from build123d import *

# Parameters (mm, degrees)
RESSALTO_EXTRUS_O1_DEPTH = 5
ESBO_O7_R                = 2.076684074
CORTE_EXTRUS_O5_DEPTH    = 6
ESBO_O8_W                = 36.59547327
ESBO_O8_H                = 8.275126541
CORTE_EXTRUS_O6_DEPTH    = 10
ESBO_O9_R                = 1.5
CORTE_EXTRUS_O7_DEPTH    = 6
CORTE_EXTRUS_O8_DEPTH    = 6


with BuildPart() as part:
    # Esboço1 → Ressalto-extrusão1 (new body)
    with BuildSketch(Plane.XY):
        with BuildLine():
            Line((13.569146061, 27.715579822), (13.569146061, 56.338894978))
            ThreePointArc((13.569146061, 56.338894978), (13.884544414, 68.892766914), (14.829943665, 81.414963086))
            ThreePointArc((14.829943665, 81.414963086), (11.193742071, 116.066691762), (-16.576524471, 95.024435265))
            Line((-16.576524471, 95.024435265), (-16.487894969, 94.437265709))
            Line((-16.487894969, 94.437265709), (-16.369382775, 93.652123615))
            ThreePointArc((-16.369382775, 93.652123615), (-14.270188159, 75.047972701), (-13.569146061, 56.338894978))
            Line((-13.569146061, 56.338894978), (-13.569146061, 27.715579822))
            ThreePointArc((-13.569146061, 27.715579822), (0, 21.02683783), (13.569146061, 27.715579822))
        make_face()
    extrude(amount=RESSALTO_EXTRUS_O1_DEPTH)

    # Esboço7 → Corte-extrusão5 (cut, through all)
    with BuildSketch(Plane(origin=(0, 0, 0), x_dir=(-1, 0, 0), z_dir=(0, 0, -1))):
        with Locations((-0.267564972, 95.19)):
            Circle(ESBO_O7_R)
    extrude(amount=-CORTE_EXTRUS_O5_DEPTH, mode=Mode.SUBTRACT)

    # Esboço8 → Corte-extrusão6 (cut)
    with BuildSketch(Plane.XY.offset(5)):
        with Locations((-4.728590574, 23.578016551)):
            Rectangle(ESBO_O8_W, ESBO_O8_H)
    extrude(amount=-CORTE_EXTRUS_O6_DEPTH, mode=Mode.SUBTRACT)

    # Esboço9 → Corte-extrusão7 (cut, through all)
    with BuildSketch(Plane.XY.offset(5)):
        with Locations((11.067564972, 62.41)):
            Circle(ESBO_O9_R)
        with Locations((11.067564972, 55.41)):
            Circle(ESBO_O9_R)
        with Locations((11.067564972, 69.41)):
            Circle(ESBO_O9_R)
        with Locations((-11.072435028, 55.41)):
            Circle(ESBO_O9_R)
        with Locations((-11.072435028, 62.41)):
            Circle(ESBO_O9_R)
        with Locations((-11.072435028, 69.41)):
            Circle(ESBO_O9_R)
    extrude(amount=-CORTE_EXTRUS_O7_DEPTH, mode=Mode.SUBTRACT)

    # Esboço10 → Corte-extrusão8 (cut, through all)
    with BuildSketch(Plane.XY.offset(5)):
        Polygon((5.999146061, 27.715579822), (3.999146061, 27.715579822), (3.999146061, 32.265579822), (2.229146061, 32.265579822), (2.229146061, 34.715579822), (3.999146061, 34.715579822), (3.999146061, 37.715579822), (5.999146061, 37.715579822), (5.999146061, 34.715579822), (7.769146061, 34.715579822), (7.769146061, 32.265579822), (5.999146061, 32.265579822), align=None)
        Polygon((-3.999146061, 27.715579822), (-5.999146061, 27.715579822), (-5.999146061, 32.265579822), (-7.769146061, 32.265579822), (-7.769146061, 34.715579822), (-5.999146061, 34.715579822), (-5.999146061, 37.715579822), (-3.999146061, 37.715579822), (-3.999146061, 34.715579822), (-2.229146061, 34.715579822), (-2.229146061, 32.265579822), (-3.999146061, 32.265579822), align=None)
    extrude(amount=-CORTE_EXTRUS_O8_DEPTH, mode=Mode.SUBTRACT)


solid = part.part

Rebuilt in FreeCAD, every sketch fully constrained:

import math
import FreeCAD as App
import Part
import Sketcher
from FreeCAD import Vector
Q = App.Units.Quantity


def add_polygon(sketch, points):
    """Adds a closed chain of lines whose ends are joined by coincident constraints."""
    first, n = sketch.GeometryCount, len(points)
    for a, b in zip(points, points[1:] + points[:1]):
        sketch.addGeometry(Part.LineSegment(App.Vector(*a, 0), App.Vector(*b, 0)), False)
    for i in range(n):
        sketch.addConstraint(Sketcher.Constraint("Coincident", first + i, 2, first + (i + 1) % n, 1))

doc = App.newDocument("Part")
params = doc.addObject("Spreadsheet::Sheet", "Params")
for row, (alias, value) in enumerate([
    ("sketch1_radius", "250 mm"),
    ("sketch1_radius2", "20 mm"),
    ("sketch1_radius3", "250 mm"),
    ("pad1_length", "5 mm"),
    ("pocket2_length", "10 mm"),
    ("sketch4_diameter", "3 mm"),
    ("sketch5_width", "2 mm"),
    ("sketch5_height", "3 mm"),
    ("sketch5_width2", "1.77 mm"),
    ("sketch5_height2", "4.55 mm"),
], start=1):
    params.set(f"A{row}", alias)
    params.set(f"B{row}", "=" + value)
    params.setAlias(f"B{row}", alias)

body = doc.addObject("PartDesign::Body", "Body")

# Sketch on XY plane
sketch1 = body.newObject("Sketcher::SketchObject", "Sketch")
sketch1.AttachmentSupport = (doc.getObject("XY_Plane"), [""])
sketch1.MapMode = "FlatFace"
sketch1.addGeometry([
    Part.LineSegment(Vector(13.569146, 27.71558, 0), Vector(13.569146, 56.338895, 0)),  # 0
    Part.ArcOfCircle(Part.Circle(Vector(263.569146, 56.338895, 0), Vector(0, 0, 1), 250), math.radians(174.243308), math.radians(180)),  # 1
    Part.ArcOfCircle(Part.Circle(Vector(3.241592, 97.71558, 0), Vector(0, 0, 1), 20), math.radians(-54.590411), math.radians(187.733017)),  # 2
    Part.LineSegment(Vector(-16.576524, 95.024435, 0), Vector(-16.487895, 94.437266, 0)),  # 3
    Part.LineSegment(Vector(-16.487895, 94.437266, 0), Vector(-16.369383, 93.652124, 0)),  # 4
    Part.ArcOfCircle(Part.Circle(Vector(-263.569146, 56.338895, 0), Vector(0, 0, 1), 250), math.radians(0), math.radians(8.583634)),  # 5
    Part.LineSegment(Vector(-13.569146, 56.338895, 0), Vector(-13.569146, 27.71558, 0)),  # 6
    Part.ArcOfCircle(Part.Circle(Vector(0, 38.134763, 0), Vector(0, 0, 1), 17.107925), math.radians(-142.48084), math.radians(-37.51916)),  # 7
], False)
sketch1.addConstraint([
    Sketcher.Constraint("Coincident", 0, 2, 1, 2),
    Sketcher.Constraint("Coincident", 1, 1, 2, 1),
    Sketcher.Constraint("Coincident", 2, 2, 3, 1),
    Sketcher.Constraint("Coincident", 3, 2, 4, 1),
    Sketcher.Constraint("Coincident", 4, 2, 5, 2),
    Sketcher.Constraint("Coincident", 5, 1, 6, 1),
    Sketcher.Constraint("Coincident", 6, 2, 7, 1),
    Sketcher.Constraint("Coincident", 7, 2, 0, 1),
    Sketcher.Constraint("Vertical", 0),
    Sketcher.Constraint("Vertical", 6),
    Sketcher.Constraint("PointOnObject", 7, 3, -2),
    Sketcher.Constraint("Radius", 1, Q("250 mm")),
    Sketcher.Constraint("Radius", 2, Q("20 mm")),
    Sketcher.Constraint("Radius", 5, Q("250 mm")),
    Sketcher.Constraint("Radius", 7, Q("17.107925 mm")),
    Sketcher.Constraint("DistanceY", 7, 3, 1, 1, Q("43.2802 mm")),
    Sketcher.Constraint("Distance", 3, Q("0.593821 mm")),
    Sketcher.Constraint("DistanceY", 0, 1, 0, 2, Q("28.623315 mm")),
    Sketcher.Constraint("DistanceY", 6, 2, 6, 1, Q("28.623315 mm")),
    Sketcher.Constraint("DistanceY", -1, 1, 2, 3, Q("97.71558 mm")),
    Sketcher.Constraint("DistanceY", -1, 1, 6, 2, Q("27.71558 mm")),
    Sketcher.Constraint("DistanceY", -1, 1, 7, 2, Q("27.71558 mm")),
    Sketcher.Constraint("DistanceX", 5, 3, 1, 3, Q("527.138292 mm")),
    Sketcher.Constraint("DistanceY", 1, 3, 1, 1, Q("25.076068 mm")),
    Sketcher.Constraint("DistanceY", 5, 3, 1, 1, Q("25.076068 mm")),
    Sketcher.Constraint("DistanceX", 2, 2, 1, 1, Q("31.406468 mm")),
    Sketcher.Constraint("DistanceX", 2, 2, 3, 2, Q("0.08863 mm")),
    Sketcher.Constraint("DistanceX", 2, 2, 4, 2, Q("0.207142 mm")),
])
sketch1.setExpression("Constraints[11]", "Params.sketch1_radius")
sketch1.setExpression("Constraints[12]", "Params.sketch1_radius2")
sketch1.setExpression("Constraints[13]", "Params.sketch1_radius3")
pad1 = body.newObject("PartDesign::Pad", "Pad")
pad1.Profile = sketch1
pad1.setExpression("Length", "Params.pad1_length")

# Sketch on XY plane
sketch2 = body.newObject("Sketcher::SketchObject", "Sketch001")
sketch2.AttachmentSupport = (doc.getObject("XY_Plane"), [""])
sketch2.MapMode = "FlatFace"
sketch2.addGeometry(Part.Circle(Vector(0.267565, 95.19, 0), Vector(0, 0, 1), 2.076684), False)
sketch2.addConstraint([
    Sketcher.Constraint("Diameter", 0, Q("4.153368 mm")),
    Sketcher.Constraint("DistanceY", -1, 1, 0, 3, Q("95.19 mm")),
    Sketcher.Constraint("DistanceX", -1, 1, 0, 3, Q("0.267565 mm")),
])
pocket1 = body.newObject("PartDesign::Pocket", "Pocket")
pocket1.Profile = sketch2
pocket1.Type = "ThroughAll"
pocket1.Reversed = True

# Sketch on XY plane
sketch3 = body.newObject("Sketcher::SketchObject", "Sketch002")
sketch3.AttachmentSupport = (doc.getObject("XY_Plane"), [""])
sketch3.MapMode = "FlatFace"
sketch3.AttachmentOffset = App.Placement(Vector(0, 0, 5), App.Rotation())
add_polygon(sketch3, [(-23.026327, 27.71558), (-23.026327, 19.440453), (13.569146, 19.440453), (13.569146, 27.71558)])  # lines 0-3
sketch3.addConstraint([
    Sketcher.Constraint("Vertical", 0),
    Sketcher.Constraint("Horizontal", 1),
    Sketcher.Constraint("Vertical", 2),
    Sketcher.Constraint("Horizontal", 3),
    Sketcher.Constraint("DistanceX", 1, 1, 1, 2, Q("36.595473 mm")),
    Sketcher.Constraint("DistanceY", 0, 2, 0, 1, Q("8.275127 mm")),
    Sketcher.Constraint("DistanceY", -1, 1, 2, 2, Q("27.71558 mm")),
    Sketcher.Constraint("DistanceX", 0, 2, -1, 1, Q("23.026327 mm")),
])
pocket2 = body.newObject("PartDesign::Pocket", "Pocket001")
pocket2.Profile = sketch3
pocket2.setExpression("Length", "Params.pocket2_length")

# Sketch on XY plane
sketch4 = body.newObject("Sketcher::SketchObject", "Sketch003")
sketch4.AttachmentSupport = (doc.getObject("XY_Plane"), [""])
sketch4.MapMode = "FlatFace"
sketch4.AttachmentOffset = App.Placement(Vector(0, 0, 5), App.Rotation())
sketch4.addGeometry([
    Part.Circle(Vector(11.067565, 62.41, 0), Vector(0, 0, 1), 1.5),  # 0
    Part.Circle(Vector(11.067565, 55.41, 0), Vector(0, 0, 1), 1.5),  # 1
    Part.Circle(Vector(11.067565, 69.41, 0), Vector(0, 0, 1), 1.5),  # 2
    Part.Circle(Vector(-11.072435, 55.41, 0), Vector(0, 0, 1), 1.5),  # 3
    Part.Circle(Vector(-11.072435, 62.41, 0), Vector(0, 0, 1), 1.5),  # 4
    Part.Circle(Vector(-11.072435, 69.41, 0), Vector(0, 0, 1), 1.5),  # 5
], False)
sketch4.addConstraint([
    Sketcher.Constraint("Equal", 0, 1),
    Sketcher.Constraint("Equal", 1, 2),
    Sketcher.Constraint("Equal", 2, 3),
    Sketcher.Constraint("Equal", 3, 4),
    Sketcher.Constraint("Equal", 4, 5),
    Sketcher.Constraint("Horizontal", 1, 3, 3, 3),
    Sketcher.Constraint("Horizontal", 0, 3, 4, 3),
    Sketcher.Constraint("Horizontal", 2, 3, 5, 3),
    Sketcher.Constraint("Vertical", 0, 3, 1, 3),
    Sketcher.Constraint("Vertical", 1, 3, 2, 3),
    Sketcher.Constraint("Vertical", 3, 3, 4, 3),
    Sketcher.Constraint("Vertical", 4, 3, 5, 3),
    Sketcher.Constraint("Diameter", 0, Q("3 mm")),
    Sketcher.Constraint("DistanceY", 1, 3, 0, 3, Q("7 mm")),
    Sketcher.Constraint("DistanceY", 0, 3, 2, 3, Q("7 mm")),
    Sketcher.Constraint("DistanceY", -1, 1, 0, 3, Q("62.41 mm")),
    Sketcher.Constraint("DistanceX", 3, 3, 1, 3, Q("22.14 mm")),
    Sketcher.Constraint("DistanceX", -1, 1, 0, 3, Q("11.067565 mm")),
])
sketch4.setExpression("Constraints[12]", "Params.sketch4_diameter")
pocket3 = body.newObject("PartDesign::Pocket", "Pocket002")
pocket3.Profile = sketch4
pocket3.Type = "ThroughAll"

# Sketch on XY plane
sketch5 = body.newObject("Sketcher::SketchObject", "Sketch004")
sketch5.AttachmentSupport = (doc.getObject("XY_Plane"), [""])
sketch5.MapMode = "FlatFace"
sketch5.AttachmentOffset = App.Placement(Vector(0, 0, 5), App.Rotation())
add_polygon(sketch5, [(3.999146, 27.71558), (5.999146, 27.71558), (5.999146, 32.26558), (7.769146, 32.26558), (7.769146, 34.71558), (5.999146, 34.71558), (5.999146, 37.71558), (3.999146, 37.71558), (3.999146, 34.71558), (2.229146, 34.71558), (2.229146, 32.26558), (3.999146, 32.26558)])  # lines 0-11
add_polygon(sketch5, [(-5.999146, 27.71558), (-3.999146, 27.71558), (-3.999146, 32.26558), (-2.229146, 32.26558), (-2.229146, 34.71558), (-3.999146, 34.71558), (-3.999146, 37.71558), (-5.999146, 37.71558), (-5.999146, 34.71558), (-7.769146, 34.71558), (-7.769146, 32.26558), (-5.999146, 32.26558)])  # lines 12-23
sketch5.addConstraint([
    Sketcher.Constraint("Horizontal", 0),
    Sketcher.Constraint("Vertical", 1),
    Sketcher.Constraint("Horizontal", 2),
    Sketcher.Constraint("Vertical", 3),
    Sketcher.Constraint("Horizontal", 4),
    Sketcher.Constraint("Vertical", 5),
    Sketcher.Constraint("Horizontal", 6),
    Sketcher.Constraint("Vertical", 7),
    Sketcher.Constraint("Horizontal", 8),
    Sketcher.Constraint("Vertical", 9),
    Sketcher.Constraint("Horizontal", 10),
    Sketcher.Constraint("Vertical", 11),
    Sketcher.Constraint("Horizontal", 12),
    Sketcher.Constraint("Vertical", 13),
    Sketcher.Constraint("Horizontal", 14),
    Sketcher.Constraint("Vertical", 15),
    Sketcher.Constraint("Horizontal", 16),
    Sketcher.Constraint("Vertical", 17),
    Sketcher.Constraint("Horizontal", 18),
    Sketcher.Constraint("Vertical", 19),
    Sketcher.Constraint("Horizontal", 20),
    Sketcher.Constraint("Vertical", 21),
    Sketcher.Constraint("Horizontal", 22),
    Sketcher.Constraint("Vertical", 23),
    Sketcher.Constraint("Symmetric", 11, 2, 12, 2, -2),
    Sketcher.Constraint("Symmetric", 9, 2, 14, 2, -2),
    Sketcher.Constraint("Symmetric", 7, 2, 16, 2, -2),
    Sketcher.Constraint("Symmetric", 5, 2, 18, 2, -2),
    Sketcher.Constraint("Symmetric", 3, 2, 20, 2, -2),
    Sketcher.Constraint("Symmetric", 1, 2, 22, 2, -2),
    Sketcher.Constraint("Horizontal", 4, 2, 7, 2),
    Sketcher.Constraint("Horizontal", 2, 2, 9, 2),
    Sketcher.Constraint("Vertical", 1, 2, 4, 2),
    Sketcher.Constraint("Vertical", 7, 2, 10, 2),
    Sketcher.Constraint("Equal", 4, 8),
    Sketcher.Constraint("DistanceX", 0, 1, 0, 2, Q("2 mm")),
    Sketcher.Constraint("DistanceY", 5, 1, 5, 2, Q("3 mm")),
    Sketcher.Constraint("DistanceY", 0, 2, 3, 2, Q("7 mm")),
    Sketcher.Constraint("DistanceX", 2, 1, 2, 2, Q("1.77 mm")),
    Sketcher.Constraint("DistanceY", 1, 1, 1, 2, Q("4.55 mm")),
    Sketcher.Constraint("DistanceY", -1, 1, 0, 2, Q("27.71558 mm")),
    Sketcher.Constraint("DistanceX", -1, 1, 0, 2, Q("5.999146 mm")),
])
sketch5.setExpression("Constraints[59]", "Params.sketch5_width")
sketch5.setExpression("Constraints[60]", "Params.sketch5_height")
sketch5.setExpression("Constraints[62]", "Params.sketch5_width2")
sketch5.setExpression("Constraints[63]", "Params.sketch5_height2")
pocket4 = body.newObject("PartDesign::Pocket", "Pocket003")
pocket4.Profile = sketch5
pocket4.Type = "ThroughAll"

doc.recompute()
